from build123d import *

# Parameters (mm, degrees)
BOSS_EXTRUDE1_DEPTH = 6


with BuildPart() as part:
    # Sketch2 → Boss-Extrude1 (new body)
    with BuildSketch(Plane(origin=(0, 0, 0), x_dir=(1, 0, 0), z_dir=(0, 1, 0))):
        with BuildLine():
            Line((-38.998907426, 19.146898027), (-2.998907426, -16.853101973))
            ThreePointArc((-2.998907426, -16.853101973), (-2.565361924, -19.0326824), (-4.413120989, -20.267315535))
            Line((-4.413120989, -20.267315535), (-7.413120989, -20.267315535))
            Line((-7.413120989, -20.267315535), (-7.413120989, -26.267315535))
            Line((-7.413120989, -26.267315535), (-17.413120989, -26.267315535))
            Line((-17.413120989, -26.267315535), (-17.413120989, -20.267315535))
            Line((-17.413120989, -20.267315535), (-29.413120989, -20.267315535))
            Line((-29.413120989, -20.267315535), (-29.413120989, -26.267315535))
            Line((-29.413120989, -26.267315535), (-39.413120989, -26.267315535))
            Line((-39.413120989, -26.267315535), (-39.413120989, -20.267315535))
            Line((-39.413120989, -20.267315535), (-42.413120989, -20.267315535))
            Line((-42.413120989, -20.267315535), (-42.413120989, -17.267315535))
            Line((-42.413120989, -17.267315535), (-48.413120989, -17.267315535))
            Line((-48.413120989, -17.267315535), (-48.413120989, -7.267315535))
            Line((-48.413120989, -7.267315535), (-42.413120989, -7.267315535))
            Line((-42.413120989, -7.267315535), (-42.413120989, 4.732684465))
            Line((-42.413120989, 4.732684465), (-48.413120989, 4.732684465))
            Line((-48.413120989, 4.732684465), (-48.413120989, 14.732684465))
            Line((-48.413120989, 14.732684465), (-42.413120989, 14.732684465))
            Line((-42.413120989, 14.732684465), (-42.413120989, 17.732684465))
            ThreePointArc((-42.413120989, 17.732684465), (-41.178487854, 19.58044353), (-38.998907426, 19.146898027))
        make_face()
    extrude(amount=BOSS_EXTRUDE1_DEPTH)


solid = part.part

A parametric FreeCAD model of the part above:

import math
import FreeCAD as App
import Part
import Sketcher
Q = App.Units.Quantity

doc = App.newDocument("Part")
body = doc.addObject("PartDesign::Body", "Body")

# Sketch on XZ plane
sketch1 = body.newObject("Sketcher::SketchObject", "Sketch")
sketch1.AttachmentSupport = (doc.getObject("XZ_Plane"), [""])
sketch1.MapMode = "FlatFace"
sketch1.addGeometry([
    Part.LineSegment(App.Vector(-2.998907, 16.853102, 0), App.Vector(-38.998907, -19.146898, 0)),  # 0
    Part.ArcOfCircle(Part.Circle(App.Vector(-40.413121, -17.732684, 0), App.Vector(0, 0, 1), 2), math.radians(180), math.radians(315)),  # 1
    Part.LineSegment(App.Vector(-42.413121, -17.732684, 0), App.Vector(-42.413121, -14.732684, 0)),  # 2
    Part.LineSegment(App.Vector(-42.413121, -14.732684, 0), App.Vector(-48.413121, -14.732684, 0)),  # 3
    Part.LineSegment(App.Vector(-48.413121, -14.732684, 0), App.Vector(-48.413121, -4.732684, 0)),  # 4
    Part.LineSegment(App.Vector(-48.413121, -4.732684, 0), App.Vector(-42.413121, -4.732684, 0)),  # 5
    Part.LineSegment(App.Vector(-42.413121, -4.732684, 0), App.Vector(-42.413121, 7.267316, 0)),  # 6
    Part.LineSegment(App.Vector(-42.413121, 7.267316, 0), App.Vector(-48.413121, 7.267316, 0)),  # 7
    Part.LineSegment(App.Vector(-48.413121, 7.267316, 0), App.Vector(-48.413121, 17.267316, 0)),  # 8
    Part.LineSegment(App.Vector(-48.413121, 17.267316, 0), App.Vector(-42.413121, 17.267316, 0)),  # 9
    Part.LineSegment(App.Vector(-42.413121, 17.267316, 0), App.Vector(-42.413121, 20.267316, 0)),  # 10
    Part.LineSegment(App.Vector(-42.413121, 20.267316, 0), App.Vector(-39.413121, 20.267316, 0)),  # 11
    Part.LineSegment(App.Vector(-39.413121, 20.267316, 0), App.Vector(-39.413121, 26.267316, 0)),  # 12
    Part.LineSegment(App.Vector(-39.413121, 26.267316, 0), App.Vector(-29.413121, 26.267316, 0)),  # 13
    Part.LineSegment(App.Vector(-29.413121, 26.267316, 0), App.Vector(-29.413121, 20.267316, 0)),  # 14
    Part.LineSegment(App.Vector(-29.413121, 20.267316, 0), App.Vector(-17.413121, 20.267316, 0)),  # 15
    Part.LineSegment(App.Vector(-17.413121, 20.267316, 0), App.Vector(-17.413121, 26.267316, 0)),  # 16
    Part.LineSegment(App.Vector(-17.413121, 26.267316, 0), App.Vector(-7.413121, 26.267316, 0)),  # 17
    Part.LineSegment(App.Vector(-7.413121, 26.267316, 0), App.Vector(-7.413121, 20.267316, 0)),  # 18
    Part.LineSegment(App.Vector(-7.413121, 20.267316, 0), App.Vector(-4.413121, 20.267316, 0)),  # 19
    Part.ArcOfCircle(Part.Circle(App.Vector(-4.413121, 18.267316, 0), App.Vector(0, 0, 1), 2), math.radians(-45), math.radians(90)),  # 20
], False)
sketch1.addConstraint([
    Sketcher.Constraint("Tangent", 0, 2, 1, 2),
    Sketcher.Constraint("Tangent", 1, 1, 2, 1),
    Sketcher.Constraint("Coincident", 2, 2, 3, 1),
    Sketcher.Constraint("Coincident", 3, 2, 4, 1),
    Sketcher.Constraint("Coincident", 4, 2, 5, 1),
    Sketcher.Constraint("Coincident", 5, 2, 6, 1),
    Sketcher.Constraint("Coincident", 6, 2, 7, 1),
    Sketcher.Constraint("Coincident", 7, 2, 8, 1),
    Sketcher.Constraint("Coincident", 8, 2, 9, 1),
    Sketcher.Constraint("Coincident", 9, 2, 10, 1),
    Sketcher.Constraint("Coincident", 10, 2, 11, 1),
    Sketcher.Constraint("Coincident", 11, 2, 12, 1),
    Sketcher.Constraint("Coincident", 12, 2, 13, 1),
    Sketcher.Constraint("Coincident", 13, 2, 14, 1),
    Sketcher.Constraint("Coincident", 14, 2, 15, 1),
    Sketcher.Constraint("Coincident", 15, 2, 16, 1),
    Sketcher.Constraint("Coincident", 16, 2, 17, 1),
    Sketcher.Constraint("Coincident", 17, 2, 18, 1),
    Sketcher.Constraint("Coincident", 18, 2, 19, 1),
    Sketcher.Constraint("Tangent", 19, 2, 20, 2),
    Sketcher.Constraint("Tangent", 20, 1, 0, 1),
    Sketcher.Constraint("Vertical", 2),
    Sketcher.Constraint("Horizontal", 3),
    Sketcher.Constraint("Vertical", 4),
    Sketcher.Constraint("Horizontal", 5),
    Sketcher.Constraint("Vertical", 6),
    Sketcher.Constraint("Horizontal", 7),
    Sketcher.Constraint("Vertical", 8),
    Sketcher.Constraint("Horizontal", 9),
    Sketcher.Constraint("Vertical", 10),
    Sketcher.Constraint("Horizontal", 11),
    Sketcher.Constraint("Vertical", 12),
    Sketcher.Constraint("Horizontal", 13),
    Sketcher.Constraint("Vertical", 14),
    Sketcher.Constraint("Horizontal", 15),
    Sketcher.Constraint("Vertical", 16),
    Sketcher.Constraint("Horizontal", 17),
    Sketcher.Constraint("Vertical", 18),
    Sketcher.Constraint("Horizontal", 19),
    Sketcher.Constraint("Equal", 1, 20),
    Sketcher.Constraint("Horizontal", 11, 2, 14, 2),
    Sketcher.Constraint("Horizontal", 13, 2, 16, 2),
    Sketcher.Constraint("Horizontal", 15, 2, 18, 2),
    Sketcher.Constraint("Vertical", 2, 2, 5, 2),
    Sketcher.Constraint("Vertical", 4, 2, 7, 2),
    Sketcher.Constraint("Vertical", 6, 2, 9, 2),
    Sketcher.Constraint("Equal", 13, 17),
    Sketcher.Constraint("Equal", 11, 19),
    Sketcher.Constraint("Equal", 19, 2),
    Sketcher.Constraint("Equal", 17, 4),
    Sketcher.Constraint("Equal", 15, 6),
    Sketcher.Constraint("Equal", 4, 8),
    Sketcher.Constraint("Equal", 2, 10),
    Sketcher.Constraint("Equal", 9, 12),
    Sketcher.Constraint("Radius", 1, Q("2 mm")),
    Sketcher.Constraint("DistanceX", 3, 2, 3, 1, Q("6 mm")),
    Sketcher.Constraint("DistanceX", 11, 1, 11, 2, Q("3 mm")),
    Sketcher.Constraint("DistanceX", 13, 1, 13, 2, Q("10 mm")),
    Sketcher.Constraint("DistanceX", 15, 1, 15, 2, Q("12 mm")),
    Sketcher.Constraint("DistanceY", 0, 2, -1, 1, Q("19.146898 mm")),
    Sketcher.Constraint("DistanceX", 1, 3, -1, 1, Q("40.413121 mm")),
])
pad1 = body.newObject("PartDesign::Pad", "Pad")
pad1.Profile = sketch1
pad1.Length = 6
pad1.Reversed = True

doc.recompute()
